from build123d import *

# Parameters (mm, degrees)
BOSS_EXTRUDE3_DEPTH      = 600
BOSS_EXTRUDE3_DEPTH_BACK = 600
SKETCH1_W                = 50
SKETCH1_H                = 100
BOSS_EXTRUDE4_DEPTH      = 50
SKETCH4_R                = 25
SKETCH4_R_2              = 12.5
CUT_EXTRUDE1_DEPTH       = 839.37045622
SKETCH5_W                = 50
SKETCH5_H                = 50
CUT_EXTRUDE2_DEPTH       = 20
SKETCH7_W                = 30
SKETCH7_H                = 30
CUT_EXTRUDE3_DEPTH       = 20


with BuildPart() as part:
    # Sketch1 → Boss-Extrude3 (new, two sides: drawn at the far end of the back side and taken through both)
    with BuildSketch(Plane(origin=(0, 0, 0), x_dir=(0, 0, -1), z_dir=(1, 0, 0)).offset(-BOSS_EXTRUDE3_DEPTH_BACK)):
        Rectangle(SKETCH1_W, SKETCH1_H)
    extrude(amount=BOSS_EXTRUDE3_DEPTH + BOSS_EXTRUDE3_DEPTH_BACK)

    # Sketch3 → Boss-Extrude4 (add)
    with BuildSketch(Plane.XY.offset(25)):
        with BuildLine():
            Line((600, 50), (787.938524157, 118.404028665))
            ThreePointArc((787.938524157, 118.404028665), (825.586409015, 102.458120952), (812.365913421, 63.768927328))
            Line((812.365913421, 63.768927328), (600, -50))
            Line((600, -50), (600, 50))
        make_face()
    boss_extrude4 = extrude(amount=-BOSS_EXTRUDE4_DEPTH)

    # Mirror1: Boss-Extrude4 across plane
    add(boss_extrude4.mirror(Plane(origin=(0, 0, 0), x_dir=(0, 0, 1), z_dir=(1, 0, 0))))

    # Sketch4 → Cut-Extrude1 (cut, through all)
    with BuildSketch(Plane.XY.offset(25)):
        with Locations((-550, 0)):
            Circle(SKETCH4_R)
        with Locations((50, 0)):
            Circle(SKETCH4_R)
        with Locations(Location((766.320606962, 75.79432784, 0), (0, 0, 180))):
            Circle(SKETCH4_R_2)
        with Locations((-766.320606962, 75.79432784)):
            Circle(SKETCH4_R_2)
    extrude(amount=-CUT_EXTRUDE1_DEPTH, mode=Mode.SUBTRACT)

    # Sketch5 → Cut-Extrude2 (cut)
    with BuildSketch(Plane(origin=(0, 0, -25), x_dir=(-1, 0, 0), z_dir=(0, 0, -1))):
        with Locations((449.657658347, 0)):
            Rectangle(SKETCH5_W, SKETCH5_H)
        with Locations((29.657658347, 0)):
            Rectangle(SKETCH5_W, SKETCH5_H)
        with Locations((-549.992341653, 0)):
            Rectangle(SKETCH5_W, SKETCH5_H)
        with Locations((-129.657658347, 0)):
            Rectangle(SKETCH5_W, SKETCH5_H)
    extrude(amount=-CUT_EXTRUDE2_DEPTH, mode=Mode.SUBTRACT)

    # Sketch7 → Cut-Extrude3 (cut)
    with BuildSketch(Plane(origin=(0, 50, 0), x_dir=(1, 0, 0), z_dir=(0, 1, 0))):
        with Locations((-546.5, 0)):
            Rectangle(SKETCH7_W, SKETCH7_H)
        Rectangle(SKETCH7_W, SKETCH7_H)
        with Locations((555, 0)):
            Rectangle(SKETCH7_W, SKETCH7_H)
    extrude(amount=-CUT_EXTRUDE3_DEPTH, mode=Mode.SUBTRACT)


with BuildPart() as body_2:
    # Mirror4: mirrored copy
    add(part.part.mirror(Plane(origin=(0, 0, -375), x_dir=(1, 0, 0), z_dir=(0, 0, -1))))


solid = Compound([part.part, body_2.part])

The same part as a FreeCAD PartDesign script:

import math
import FreeCAD as App
import Part
import Sketcher
from FreeCAD import Vector
Q = App.Units.Quantity

doc = App.newDocument("Part")
params = doc.addObject("Spreadsheet::Sheet", "Params")
for row, (alias, value) in enumerate([
    ("sketch1_width", "100 mm"),
    ("sketch1_height", "50 mm"),
    ("pad1_length", "600 mm"),
    ("pad1_length2", "600 mm"),
    ("sketch2_radius", "30 mm"),
    ("sketch2_height", "100 mm"),
    ("sketch2_length", "200 mm"),
    ("pad2_length", "50 mm"),
    ("sketch3_diameter", "50 mm"),
    ("sketch3_diameter2", "25 mm"),
    ("sketch4_width", "50 mm"),
    ("pocket2_length", "20 mm"),
    ("sketch5_width", "30 mm"),
    ("pocket3_length", "20 mm"),
], start=1):
    params.set(f"A{row}", alias)
    params.set(f"B{row}", "=" + value)
    params.setAlias(f"B{row}", alias)

body = doc.addObject("PartDesign::Body", "Body")

# Sketch on YZ plane
sketch1 = body.newObject("Sketcher::SketchObject", "Sketch")
sketch1.AttachmentSupport = (doc.getObject("YZ_Plane"), [""])
sketch1.MapMode = "FlatFace"
sketch1.addGeometry([
    Part.LineSegment(Vector(50, 25, 0), Vector(-50, 25, 0)),
    Part.LineSegment(Vector(-50, 25, 0), Vector(-50, -25, 0)),
    Part.LineSegment(Vector(-50, -25, 0), Vector(50, -25, 0)),
    Part.LineSegment(Vector(50, -25, 0), Vector(50, 25, 0)),
], False)
sketch1.addConstraint([
    Sketcher.Constraint("Coincident", 0, 2, 1, 1),
    Sketcher.Constraint("Coincident", 1, 2, 2, 1),
    Sketcher.Constraint("Coincident", 2, 2, 3, 1),
    Sketcher.Constraint("Coincident", 3, 2, 0, 1),
    Sketcher.Constraint("Horizontal", 0),
    Sketcher.Constraint("Vertical", 1),
    Sketcher.Constraint("Horizontal", 2),
    Sketcher.Constraint("Vertical", 3),
    Sketcher.Constraint("Symmetric", 0, 2, 2, 2, -1, 1),
    Sketcher.Constraint("DistanceX", 0, 2, 0, 1, Q("100 mm")),
    Sketcher.Constraint("DistanceY", 1, 2, 1, 1, Q("50 mm")),
])
sketch1.setExpression("Constraints[9]", "Params.sketch1_width")
sketch1.setExpression("Constraints[10]", "Params.sketch1_height")
pad1 = body.newObject("PartDesign::Pad", "Pad")
pad1.Profile = sketch1
pad1.Type = "TwoLengths"
pad1.setExpression("Length", "Params.pad1_length")
pad1.setExpression("Length2", "Params.pad1_length2")

# Sketch on XY plane
sketch2 = body.newObject("Sketcher::SketchObject", "Sketch001")
sketch2.AttachmentSupport = (doc.getObject("XY_Plane"), [""])
sketch2.MapMode = "FlatFace"
sketch2.AttachmentOffset = App.Placement(Vector(0, 0, 25), App.Rotation())
sketch2.addGeometry([
    Part.LineSegment(Vector(788, 118, 0), Vector(600, 50, 0)),
    Part.LineSegment(Vector(600, 50, 0), Vector(600, -50, 0)),
    Part.LineSegment(Vector(600, -50, 0), Vector(812, 64, 0)),
    Part.ArcOfCircle(Part.Circle(Vector(798, 90, 0), Vector(0, 0, 1), 30), math.radians(-62), math.radians(110)),
], False)
sketch2.addConstraint([
    Sketcher.Constraint("Coincident", 0, 2, 1, 1),
    Sketcher.Constraint("Coincident", 1, 2, 2, 1),
    Sketcher.Constraint("Tangent", 2, 2, 3, 1),
    Sketcher.Constraint("Tangent", 3, 2, 0, 1),
    Sketcher.Constraint("Vertical", 1),
    Sketcher.Constraint("Radius", 3, Q("30 mm")),
    Sketcher.Constraint("DistanceY", 1, 2, 1, 1, Q("100 mm")),
    Sketcher.Constraint("Angle", 0, Q("-160 deg")),
    Sketcher.Constraint("Distance", 0, Q("200 mm")),
    Sketcher.Constraint("DistanceX", -1, 1, 0, 2, Q("600 mm")),
    Sketcher.Constraint("DistanceY", -1, 1, 0, 2, Q("50 mm")),
])
sketch2.setExpression("Constraints[5]", "Params.sketch2_radius")
sketch2.setExpression("Constraints[6]", "Params.sketch2_height")
sketch2.setExpression("Constraints[8]", "Params.sketch2_length")
pad2 = body.newObject("PartDesign::Pad", "Pad001")
pad2.Profile = sketch2
pad2.setExpression("Length", "Params.pad2_length")
pad2.Reversed = True
doc.recompute()

mirrored = body.newObject("PartDesign::Mirrored", "Mirrored")
mirrored.Originals = [pad2]
mirrored.MirrorPlane = (doc.getObject("YZ_Plane"), [""])
body.Tip = mirrored

# Sketch on XY plane
sketch3 = body.newObject("Sketcher::SketchObject", "Sketch002")
sketch3.AttachmentSupport = (doc.getObject("XY_Plane"), [""])
sketch3.MapMode = "FlatFace"
sketch3.AttachmentOffset = App.Placement(Vector(0, 0, 25), App.Rotation())
sketch3.addGeometry([
    Part.Circle(Vector(-550, 0, 0), Vector(0, 0, 1), 25),
    Part.Circle(Vector(50, 0, 0), Vector(0, 0, 1), 25),
    Part.Circle(Vector(766, 76, 0), Vector(0, 0, 1), 12),
    Part.Circle(Vector(-766, 76, 0), Vector(0, 0, 1), 12),
], False)
sketch3.addConstraint([
    Sketcher.Constraint("Equal", 0, 1),
    Sketcher.Constraint("Equal", 2, 3),
    Sketcher.Constraint("Symmetric", 2, 3, 3, 3, -2),
    Sketcher.Constraint("PointOnObject", 0, 3, -1),
    Sketcher.Constraint("PointOnObject", 1, 3, -1),
    Sketcher.Constraint("Diameter", 0, Q("50 mm")),
    Sketcher.Constraint("Diameter", 2, Q("25 mm")),
    Sketcher.Constraint("DistanceX", 0, 3, -1, 1, Q("550 mm")),
    Sketcher.Constraint("DistanceX", -1, 1, 1, 3, Q("50 mm")),
    Sketcher.Constraint("DistanceX", -1, 1, 2, 3, Q("766.320607 mm")),
    Sketcher.Constraint("DistanceY", -1, 1, 2, 3, Q("75.794328 mm")),
])
sketch3.setExpression("Constraints[5]", "Params.sketch3_diameter")
sketch3.setExpression("Constraints[6]", "Params.sketch3_diameter2")
pocket1 = body.newObject("PartDesign::Pocket", "Pocket")
pocket1.Profile = sketch3
pocket1.Type = "ThroughAll"

# Sketch on XY plane
sketch4 = body.newObject("Sketcher::SketchObject", "Sketch003")
sketch4.AttachmentSupport = (doc.getObject("XY_Plane"), [""])
sketch4.MapMode = "FlatFace"
sketch4.AttachmentOffset = App.Placement(Vector(0, 0, -25), App.Rotation())
sketch4.addGeometry([
    Part.LineSegment(Vector(-425, 25, 0), Vector(-425, -25, 0)),  # 0
    Part.LineSegment(Vector(-425, -25, 0), Vector(-475, -25, 0)),  # 1
    Part.LineSegment(Vector(-475, -25, 0), Vector(-475, 25, 0)),  # 2
    Part.LineSegment(Vector(-475, 25, 0), Vector(-425, 25, 0)),  # 3
    Part.LineSegment(Vector(-5, 25, 0), Vector(-5, -25, 0)),  # 4
    Part.LineSegment(Vector(-5, -25, 0), Vector(-55, -25, 0)),  # 5
    Part.LineSegment(Vector(-55, -25, 0), Vector(-55, 25, 0)),  # 6
    Part.LineSegment(Vector(-55, 25, 0), Vector(-5, 25, 0)),  # 7
    Part.LineSegment(Vector(575, 25, 0), Vector(575, -25, 0)),  # 8
    Part.LineSegment(Vector(575, -25, 0), Vector(525, -25, 0)),  # 9
    Part.LineSegment(Vector(525, -25, 0), Vector(525, 25, 0)),  # 10
    Part.LineSegment(Vector(525, 25, 0), Vector(575, 25, 0)),  # 11
    Part.LineSegment(Vector(155, 25, 0), Vector(155, -25, 0)),  # 12
    Part.LineSegment(Vector(155, -25, 0), Vector(105, -25, 0)),  # 13
    Part.LineSegment(Vector(105, -25, 0), Vector(105, 25, 0)),  # 14
    Part.LineSegment(Vector(105, 25, 0), Vector(155, 25, 0)),  # 15
], False)
sketch4.addConstraint([
    Sketcher.Constraint("Coincident", 0, 2, 1, 1),
    Sketcher.Constraint("Coincident", 1, 2, 2, 1),
    Sketcher.Constraint("Coincident", 2, 2, 3, 1),
    Sketcher.Constraint("Coincident", 3, 2, 0, 1),
    Sketcher.Constraint("Coincident", 4, 2, 5, 1),
    Sketcher.Constraint("Coincident", 5, 2, 6, 1),
    Sketcher.Constraint("Coincident", 6, 2, 7, 1),
    Sketcher.Constraint("Coincident", 7, 2, 4, 1),
    Sketcher.Constraint("Coincident", 8, 2, 9, 1),
    Sketcher.Constraint("Coincident", 9, 2, 10, 1),
    Sketcher.Constraint("Coincident", 10, 2, 11, 1),
    Sketcher.Constraint("Coincident", 11, 2, 8, 1),
    Sketcher.Constraint("Coincident", 12, 2, 13, 1),
    Sketcher.Constraint("Coincident", 13, 2, 14, 1),
    Sketcher.Constraint("Coincident", 14, 2, 15, 1),
    Sketcher.Constraint("Coincident", 15, 2, 12, 1),
    Sketcher.Constraint("Vertical", 0),
    Sketcher.Constraint("Horizontal", 1),
    Sketcher.Constraint("Vertical", 2),
    Sketcher.Constraint("Horizontal", 3),
    Sketcher.Constraint("Vertical", 4),
    Sketcher.Constraint("Horizontal", 5),
    Sketcher.Constraint("Vertical", 6),
    Sketcher.Constraint("Horizontal", 7),
    Sketcher.Constraint("Vertical", 8),
    Sketcher.Constraint("Horizontal", 9),
    Sketcher.Constraint("Vertical", 10),
    Sketcher.Constraint("Horizontal", 11),
    Sketcher.Constraint("Vertical", 12),
    Sketcher.Constraint("Horizontal", 13),
    Sketcher.Constraint("Vertical", 14),
    Sketcher.Constraint("Horizontal", 15),
    Sketcher.Constraint("Horizontal", 1, 2, 4, 2),
    Sketcher.Constraint("Horizontal", 3, 2, 6, 2),
    Sketcher.Constraint("Horizontal", 5, 2, 8, 2),
    Sketcher.Constraint("Horizontal", 7, 2, 10, 2),
    Sketcher.Constraint("Horizontal", 9, 2, 12, 2),
    Sketcher.Constraint("Horizontal", 11, 2, 14, 2),
    Sketcher.Constraint("Equal", 3, 5),
    Sketcher.Constraint("Equal", 7, 9),
    Sketcher.Constraint("Equal", 11, 13),
    Sketcher.Constraint("Equal", 15, 0),
    Sketcher.Constraint("DistanceX", 1, 2, 1, 1, Q("50 mm")),
    Sketcher.Constraint("DistanceY", 0, 2, -1, 1, Q("25 mm")),
    Sketcher.Constraint("DistanceX", 0, 2, 4, 2, Q("420 mm")),
    Sketcher.Constraint("DistanceX", 4, 2, 8, 2, Q("579.65 mm")),
    Sketcher.Constraint("DistanceX", 0, 2, -1, 1, Q("424.657658 mm")),
    Sketcher.Constraint("DistanceX", -1, 1, 12, 2, Q("154.657658 mm")),
])
sketch4.setExpression("Constraints[42]", "Params.sketch4_width")
pocket2 = body.newObject("PartDesign::Pocket", "Pocket001")
pocket2.Profile = sketch4
pocket2.setExpression("Length", "Params.pocket2_length")
pocket2.Reversed = True

# Sketch on XZ plane
sketch5 = body.newObject("Sketcher::SketchObject", "Sketch004")
sketch5.AttachmentSupport = (doc.getObject("XZ_Plane"), [""])
sketch5.MapMode = "FlatFace"
sketch5.AttachmentOffset = App.Placement(Vector(0, 0, -50), App.Rotation())
sketch5.addGeometry([
    Part.LineSegment(Vector(-562, -15, 0), Vector(-562, 15, 0)),  # 0
    Part.LineSegment(Vector(-562, 15, 0), Vector(-532, 15, 0)),  # 1
    Part.LineSegment(Vector(-532, 15, 0), Vector(-532, -15, 0)),  # 2
    Part.LineSegment(Vector(-532, -15, 0), Vector(-562, -15, 0)),  # 3
    Part.LineSegment(Vector(-15, -15, 0), Vector(-15, 15, 0)),  # 4
    Part.LineSegment(Vector(-15, 15, 0), Vector(15, 15, 0)),  # 5
    Part.LineSegment(Vector(15, 15, 0), Vector(15, -15, 0)),  # 6
    Part.LineSegment(Vector(15, -15, 0), Vector(-15, -15, 0)),  # 7
    Part.LineSegment(Vector(540, -15, 0), Vector(540, 15, 0)),  # 8
    Part.LineSegment(Vector(540, 15, 0), Vector(570, 15, 0)),  # 9
    Part.LineSegment(Vector(570, 15, 0), Vector(570, -15, 0)),  # 10
    Part.LineSegment(Vector(570, -15, 0), Vector(540, -15, 0)),  # 11
], False)
sketch5.addConstraint([
    Sketcher.Constraint("Coincident", 0, 2, 1, 1),
    Sketcher.Constraint("Coincident", 1, 2, 2, 1),
    Sketcher.Constraint("Coincident", 2, 2, 3, 1),
    Sketcher.Constraint("Coincident", 3, 2, 0, 1),
    Sketcher.Constraint("Coincident", 4, 2, 5, 1),
    Sketcher.Constraint("Coincident", 5, 2, 6, 1),
    Sketcher.Constraint("Coincident", 6, 2, 7, 1),
    Sketcher.Constraint("Coincident", 7, 2, 4, 1),
    Sketcher.Constraint("Coincident", 8, 2, 9, 1),
    Sketcher.Constraint("Coincident", 9, 2, 10, 1),
    Sketcher.Constraint("Coincident", 10, 2, 11, 1),
    Sketcher.Constraint("Coincident", 11, 2, 8, 1),
    Sketcher.Constraint("Vertical", 0),
    Sketcher.Constraint("Horizontal", 1),
    Sketcher.Constraint("Vertical", 2),
    Sketcher.Constraint("Horizontal", 3),
    Sketcher.Constraint("Vertical", 4),
    Sketcher.Constraint("Horizontal", 5),
    Sketcher.Constraint("Vertical", 6),
    Sketcher.Constraint("Horizontal", 7),
    Sketcher.Constraint("Vertical", 8),
    Sketcher.Constraint("Horizontal", 9),
    Sketcher.Constraint("Vertical", 10),
    Sketcher.Constraint("Horizontal", 11),
    Sketcher.Constraint("Symmetric", 4, 2, 6, 2, -1, 1),
    Sketcher.Constraint("Horizontal", 1, 2, 4, 2),
    Sketcher.Constraint("Horizontal", 3, 2, 6, 2),
    Sketcher.Constraint("Horizontal", 5, 2, 8, 2),
    Sketcher.Constraint("Horizontal", 7, 2, 10, 2),
    Sketcher.Constraint("Equal", 3, 5),
    Sketcher.Constraint("Equal", 7, 9),
    Sketcher.Constraint("Equal", 11, 0),
    Sketcher.Constraint("DistanceX", 1, 1, 1, 2, Q("30 mm")),
    Sketcher.Constraint("DistanceX", -1, 1, 8, 2, Q("540 mm")),
    Sketcher.Constraint("DistanceX", 0, 2, -1, 1, Q("561.5 mm")),
])
sketch5.setExpression("Constraints[32]", "Params.sketch5_width")
pocket3 = body.newObject("PartDesign::Pocket", "Pocket002")
pocket3.Profile = sketch5
pocket3.setExpression("Length", "Params.pocket3_length")
pocket3.Reversed = True
body2 = doc.addObject("PartDesign::Body", "Body001")
doc.recompute()

mirroring = doc.addObject("Part::Mirroring", "Mirroring")
mirroring.Source = body
mirroring.Base = Vector(0, 0, -375)
mirroring.Normal = Vector(0, 0, -1)
body2.BaseFeature = mirroring
doc.recompute()
mirroring.Visibility = False

doc.recompute()
